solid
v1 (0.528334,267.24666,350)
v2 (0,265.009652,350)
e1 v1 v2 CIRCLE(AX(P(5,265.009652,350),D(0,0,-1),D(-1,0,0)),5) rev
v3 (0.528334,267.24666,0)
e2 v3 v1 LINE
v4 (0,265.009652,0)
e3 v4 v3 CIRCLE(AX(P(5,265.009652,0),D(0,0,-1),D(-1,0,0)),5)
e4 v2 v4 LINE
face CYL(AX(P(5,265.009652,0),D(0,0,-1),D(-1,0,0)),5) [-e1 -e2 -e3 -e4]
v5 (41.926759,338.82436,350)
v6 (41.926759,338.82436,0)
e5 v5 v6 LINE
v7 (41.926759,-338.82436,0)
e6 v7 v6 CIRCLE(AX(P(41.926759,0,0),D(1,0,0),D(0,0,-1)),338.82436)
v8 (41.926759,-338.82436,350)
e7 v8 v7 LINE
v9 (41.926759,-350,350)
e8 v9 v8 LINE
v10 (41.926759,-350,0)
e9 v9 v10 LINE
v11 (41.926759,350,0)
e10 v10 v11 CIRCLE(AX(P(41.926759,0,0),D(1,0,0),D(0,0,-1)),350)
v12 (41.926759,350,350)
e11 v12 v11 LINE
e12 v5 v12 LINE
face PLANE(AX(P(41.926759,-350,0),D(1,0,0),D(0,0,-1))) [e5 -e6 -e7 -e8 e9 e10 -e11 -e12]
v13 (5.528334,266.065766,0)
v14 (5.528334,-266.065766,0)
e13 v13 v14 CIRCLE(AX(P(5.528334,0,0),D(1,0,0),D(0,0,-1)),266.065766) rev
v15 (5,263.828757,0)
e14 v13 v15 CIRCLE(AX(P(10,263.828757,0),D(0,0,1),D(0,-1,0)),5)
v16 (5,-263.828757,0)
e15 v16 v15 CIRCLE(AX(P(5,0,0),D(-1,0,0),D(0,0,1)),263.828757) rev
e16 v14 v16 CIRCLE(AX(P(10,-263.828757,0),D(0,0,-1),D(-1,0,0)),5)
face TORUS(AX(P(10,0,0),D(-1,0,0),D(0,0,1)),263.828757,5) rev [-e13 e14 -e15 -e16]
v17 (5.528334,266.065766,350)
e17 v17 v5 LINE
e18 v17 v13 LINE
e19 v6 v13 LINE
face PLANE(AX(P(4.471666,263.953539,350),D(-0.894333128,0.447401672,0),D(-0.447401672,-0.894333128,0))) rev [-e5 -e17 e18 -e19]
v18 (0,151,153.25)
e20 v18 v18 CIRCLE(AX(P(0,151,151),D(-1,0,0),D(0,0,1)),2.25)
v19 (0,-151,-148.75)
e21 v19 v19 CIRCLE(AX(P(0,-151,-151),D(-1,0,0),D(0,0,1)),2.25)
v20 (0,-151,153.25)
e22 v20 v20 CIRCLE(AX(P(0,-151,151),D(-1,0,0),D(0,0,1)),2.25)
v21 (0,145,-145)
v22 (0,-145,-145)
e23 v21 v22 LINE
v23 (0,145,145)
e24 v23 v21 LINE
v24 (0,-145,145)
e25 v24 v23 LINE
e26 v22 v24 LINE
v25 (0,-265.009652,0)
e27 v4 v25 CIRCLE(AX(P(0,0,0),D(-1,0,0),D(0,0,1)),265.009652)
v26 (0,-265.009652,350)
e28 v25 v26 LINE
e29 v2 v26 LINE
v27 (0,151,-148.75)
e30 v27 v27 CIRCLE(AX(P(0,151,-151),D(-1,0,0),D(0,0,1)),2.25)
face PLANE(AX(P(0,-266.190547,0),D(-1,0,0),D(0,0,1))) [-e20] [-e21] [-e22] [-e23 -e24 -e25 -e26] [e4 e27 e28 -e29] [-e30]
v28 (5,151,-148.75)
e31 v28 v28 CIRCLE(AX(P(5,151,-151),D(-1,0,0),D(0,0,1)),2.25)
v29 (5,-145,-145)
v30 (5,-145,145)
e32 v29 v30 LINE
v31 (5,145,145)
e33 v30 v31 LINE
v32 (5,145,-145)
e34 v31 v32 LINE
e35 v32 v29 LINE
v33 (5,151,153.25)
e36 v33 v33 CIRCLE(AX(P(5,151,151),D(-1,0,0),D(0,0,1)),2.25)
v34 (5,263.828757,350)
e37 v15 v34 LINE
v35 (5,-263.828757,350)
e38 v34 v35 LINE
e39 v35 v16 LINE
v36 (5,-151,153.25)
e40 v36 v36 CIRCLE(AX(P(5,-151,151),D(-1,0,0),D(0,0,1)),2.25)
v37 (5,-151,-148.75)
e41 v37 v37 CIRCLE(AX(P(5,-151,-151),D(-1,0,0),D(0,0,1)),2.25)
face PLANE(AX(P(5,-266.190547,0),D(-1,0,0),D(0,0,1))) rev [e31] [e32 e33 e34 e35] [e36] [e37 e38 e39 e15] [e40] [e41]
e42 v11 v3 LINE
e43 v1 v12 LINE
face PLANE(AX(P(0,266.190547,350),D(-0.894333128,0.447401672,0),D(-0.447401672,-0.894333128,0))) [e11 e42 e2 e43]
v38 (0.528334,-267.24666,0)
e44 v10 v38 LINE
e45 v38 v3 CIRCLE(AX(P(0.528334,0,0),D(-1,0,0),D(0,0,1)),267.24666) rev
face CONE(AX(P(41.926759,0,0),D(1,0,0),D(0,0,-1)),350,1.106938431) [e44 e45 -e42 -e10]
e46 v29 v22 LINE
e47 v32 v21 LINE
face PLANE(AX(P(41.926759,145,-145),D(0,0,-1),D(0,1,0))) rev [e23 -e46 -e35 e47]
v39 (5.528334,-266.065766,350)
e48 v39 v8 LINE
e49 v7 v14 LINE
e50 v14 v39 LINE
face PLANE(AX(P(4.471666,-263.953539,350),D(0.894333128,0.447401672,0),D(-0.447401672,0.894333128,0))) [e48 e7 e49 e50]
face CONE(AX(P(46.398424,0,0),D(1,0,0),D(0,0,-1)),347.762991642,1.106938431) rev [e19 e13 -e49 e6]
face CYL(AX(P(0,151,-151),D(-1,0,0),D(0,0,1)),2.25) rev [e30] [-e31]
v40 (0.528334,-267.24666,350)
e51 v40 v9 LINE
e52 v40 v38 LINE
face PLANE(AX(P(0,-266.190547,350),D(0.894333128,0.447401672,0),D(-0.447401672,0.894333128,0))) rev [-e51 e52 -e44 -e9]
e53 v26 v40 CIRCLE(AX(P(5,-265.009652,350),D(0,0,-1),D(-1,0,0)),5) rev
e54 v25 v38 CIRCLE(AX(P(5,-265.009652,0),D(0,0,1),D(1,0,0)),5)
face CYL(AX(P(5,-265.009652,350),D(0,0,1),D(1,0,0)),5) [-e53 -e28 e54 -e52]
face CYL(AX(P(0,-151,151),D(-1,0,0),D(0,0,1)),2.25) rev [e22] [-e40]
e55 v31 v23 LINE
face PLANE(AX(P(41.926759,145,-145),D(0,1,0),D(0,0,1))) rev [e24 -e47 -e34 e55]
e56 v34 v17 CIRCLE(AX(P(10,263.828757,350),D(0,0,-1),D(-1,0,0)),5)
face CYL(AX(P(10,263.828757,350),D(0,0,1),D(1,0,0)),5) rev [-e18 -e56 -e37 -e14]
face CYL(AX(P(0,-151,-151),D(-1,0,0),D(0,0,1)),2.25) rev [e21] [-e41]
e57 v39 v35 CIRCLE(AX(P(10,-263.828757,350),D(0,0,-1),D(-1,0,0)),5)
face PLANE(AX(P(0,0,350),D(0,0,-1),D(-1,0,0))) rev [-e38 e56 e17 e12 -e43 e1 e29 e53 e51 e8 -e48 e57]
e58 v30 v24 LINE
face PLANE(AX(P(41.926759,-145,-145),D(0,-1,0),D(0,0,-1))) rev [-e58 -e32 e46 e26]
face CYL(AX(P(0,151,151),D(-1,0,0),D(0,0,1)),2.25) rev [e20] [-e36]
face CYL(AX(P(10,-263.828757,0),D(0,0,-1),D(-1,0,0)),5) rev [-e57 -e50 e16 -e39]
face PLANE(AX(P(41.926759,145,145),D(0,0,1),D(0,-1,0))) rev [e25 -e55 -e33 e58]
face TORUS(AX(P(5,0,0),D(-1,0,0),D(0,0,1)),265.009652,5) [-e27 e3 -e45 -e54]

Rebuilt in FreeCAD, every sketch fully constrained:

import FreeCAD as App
import Part
import Sketcher
Q = App.Units.Quantity


def edges_at(feature, points):
    """Names of the edges that pass closest to the given points."""
    edges = feature.Shape.Edges
    near = lambda p: min(range(len(edges)), key=lambda i: edges[i].distToShape(Part.Vertex(*p))[0])
    return sorted({f"Edge{near(p) + 1}" for p in points})


def faces_at(feature, points):
    """Names of the faces that lie closest to the given points."""
    faces = feature.Shape.Faces
    near = lambda p: min(range(len(faces)), key=lambda i: faces[i].distToShape(Part.Vertex(*p))[0])
    return sorted({f"Face{near(p) + 1}" for p in points})

doc = App.newDocument("Part")
params = doc.addObject("Spreadsheet::Sheet", "Params")
for row, (alias, value) in enumerate([
    ("sketch1_height", "350 mm"),
    ("revolution_angle", "180 deg"),
    ("sketch2_height", "700 mm"),
    ("pad1_length", "350 mm"),
    ("thickness_wall", "5 mm"),
    ("sketch3_width", "290 mm"),
    ("sketch4_diameter", "4.5 mm"),
    ("hole_diameter", "4.5 mm"),
    ("hole_depth", "30 mm"),
    ("fillet_radius", "5 mm"),
], start=1):
    params.set(f"A{row}", alias)
    params.set(f"B{row}", "=" + value)
    params.setAlias(f"B{row}", alias)

body = doc.addObject("PartDesign::Body", "Body")

# Sketch on XY plane
sketch1 = body.newObject("Sketcher::SketchObject", "Sketch")
sketch1.AttachmentSupport = (doc.getObject("XY_Plane"), [""])
sketch1.MapMode = "FlatFace"
sketch1.addGeometry([
    Part.LineSegment(App.Vector(41.926759, 0, 0), App.Vector(41.926759, 350, 0)),
    Part.LineSegment(App.Vector(41.926759, 350, 0), App.Vector(0, 266.190547, 0)),
    Part.LineSegment(App.Vector(0, 266.190547, 0), App.Vector(0, 0, 0)),
    Part.LineSegment(App.Vector(0, 0, 0), App.Vector(41.926759, 0, 0)),
], False)
sketch1.addConstraint([
    Sketcher.Constraint("Coincident", 0, 2, 1, 1),
    Sketcher.Constraint("Coincident", 1, 2, 2, 1),
    Sketcher.Constraint("Coincident", 2, 2, 3, 1),
    Sketcher.Constraint("Coincident", 3, 2, 0, 1),
    Sketcher.Constraint("Vertical", 0),
    Sketcher.Constraint("Vertical", 2),
    Sketcher.Constraint("Horizontal", 3),
    Sketcher.Constraint("Coincident", 2, 2, -1, 1),
    Sketcher.Constraint("DistanceY", 0, 1, 0, 2, Q("350 mm")),
    Sketcher.Constraint("DistanceX", 3, 1, 3, 2, Q("41.926759 mm")),
    Sketcher.Constraint("DistanceY", 2, 2, 2, 1, Q("266.190547 mm")),
])
sketch1.setExpression("Constraints[8]", "Params.sketch1_height")
revolution = body.newObject("PartDesign::Revolution", "Revolution")
revolution.Profile = sketch1
revolution.ReferenceAxis = (sketch1, ["H_Axis"])
revolution.setExpression("Angle", "Params.revolution_angle")
revolution.Reversed = True

# Sketch on XY plane
sketch2 = body.newObject("Sketcher::SketchObject", "Sketch001")
sketch2.AttachmentSupport = (doc.getObject("XY_Plane"), [""])
sketch2.MapMode = "FlatFace"
sketch2.addGeometry([
    Part.LineSegment(App.Vector(41.926759, 350, 0), App.Vector(0, 266.190547, 0)),
    Part.LineSegment(App.Vector(0, 266.190547, 0), App.Vector(0, -266.190547, 0)),
    Part.LineSegment(App.Vector(0, -266.190547, 0), App.Vector(41.926759, -350, 0)),
    Part.LineSegment(App.Vector(41.926759, -350, 0), App.Vector(41.926759, 350, 0)),
], False)
sketch2.addConstraint([
    Sketcher.Constraint("Coincident", 0, 2, 1, 1),
    Sketcher.Constraint("Coincident", 1, 2, 2, 1),
    Sketcher.Constraint("Coincident", 2, 2, 3, 1),
    Sketcher.Constraint("Coincident", 3, 2, 0, 1),
    Sketcher.Constraint("Vertical", 1),
    Sketcher.Constraint("Vertical", 3),
    Sketcher.Constraint("Symmetric", 0, 2, 1, 2, -1, 1),
    Sketcher.Constraint("Equal", 0, 2),
    Sketcher.Constraint("DistanceY", 3, 1, 3, 2, Q("700 mm")),
    Sketcher.Constraint("DistanceY", 1, 2, 1, 1, Q("532.381094 mm")),
    Sketcher.Constraint("DistanceX", -1, 1, 2, 2, Q("41.926759 mm")),
])
sketch2.setExpression("Constraints[8]", "Params.sketch2_height")
pad1 = body.newObject("PartDesign::Pad", "Pad")
pad1.Profile = sketch2
pad1.setExpression("Length", "Params.pad1_length")
doc.recompute()

thickness = body.newObject("PartDesign::Thickness", "Thickness")
thickness.Base = (pad1, faces_at(pad1, [(20.963, 0, 350), (41.927, 0, 0)]))
thickness.setExpression("Value", "Params.thickness_wall")
thickness.Reversed = True
thickness.Join = "Intersection"

# Sketch on YZ plane
sketch3 = body.newObject("Sketcher::SketchObject", "Sketch002")
sketch3.AttachmentSupport = (doc.getObject("YZ_Plane"), [""])
sketch3.MapMode = "FlatFace"
sketch3.addGeometry([
    Part.LineSegment(App.Vector(145, -145, 0), App.Vector(-145, -145, 0)),
    Part.LineSegment(App.Vector(-145, -145, 0), App.Vector(-145, 145, 0)),
    Part.LineSegment(App.Vector(-145, 145, 0), App.Vector(145, 145, 0)),
    Part.LineSegment(App.Vector(145, 145, 0), App.Vector(145, -145, 0)),
], False)
sketch3.addConstraint([
    Sketcher.Constraint("Coincident", 0, 2, 1, 1),
    Sketcher.Constraint("Coincident", 1, 2, 2, 1),
    Sketcher.Constraint("Coincident", 2, 2, 3, 1),
    Sketcher.Constraint("Coincident", 3, 2, 0, 1),
    Sketcher.Constraint("Horizontal", 0),
    Sketcher.Constraint("Vertical", 1),
    Sketcher.Constraint("Horizontal", 2),
    Sketcher.Constraint("Vertical", 3),
    Sketcher.Constraint("Symmetric", 0, 2, 2, 2, -1, 1),
    Sketcher.Constraint("Equal", 2, 1),
    Sketcher.Constraint("DistanceX", 0, 2, 0, 1, Q("290 mm")),
])
sketch3.setExpression("Constraints[10]", "Params.sketch3_width")
pocket1 = body.newObject("PartDesign::Pocket", "Pocket")
pocket1.Profile = sketch3
pocket1.Type = "ThroughAll"
pocket1.Reversed = True

# Sketch on YZ plane
sketch4 = body.newObject("Sketcher::SketchObject", "Sketch003")
sketch4.AttachmentSupport = (doc.getObject("YZ_Plane"), [""])
sketch4.MapMode = "FlatFace"
sketch4.addGeometry([
    Part.Circle(App.Vector(151, 151, 0), App.Vector(0, 0, 1), 2.25),
    Part.Circle(App.Vector(-151, 151, 0), App.Vector(0, 0, 1), 2.25),
    Part.Circle(App.Vector(-151, -151, 0), App.Vector(0, 0, 1), 2.25),
    Part.Circle(App.Vector(151, -151, 0), App.Vector(0, 0, 1), 2.25),
], False)
sketch4.addConstraint([
    Sketcher.Constraint("Equal", 0, 1),
    Sketcher.Constraint("Equal", 1, 2),
    Sketcher.Constraint("Equal", 2, 3),
    Sketcher.Constraint("Symmetric", 0, 3, 2, 3, -1, 1),
    Sketcher.Constraint("Symmetric", 1, 3, 3, 3, -1, 1),
    Sketcher.Constraint("Symmetric", 0, 3, 1, 3, -2),
    Sketcher.Constraint("Diameter", 0, Q("4.5 mm")),
    Sketcher.Constraint("DistanceX", -1, 1, 0, 3, Q("151 mm")),
    Sketcher.Constraint("DistanceY", -1, 1, 0, 3, Q("151 mm")),
])
sketch4.setExpression("Constraints[6]", "Params.sketch4_diameter")
doc.recompute()
hole = body.newObject("PartDesign::Hole", "Hole")
hole.Profile = sketch4
hole.ThreadType = "None"
hole.setExpression("Diameter", "Params.hole_diameter")
hole.DepthType = "Dimension"
hole.setExpression("Depth", "Params.hole_depth")
hole.DrillPoint = "Angled"
hole.DrillPointAngle = 118
hole.Reversed = True
doc.recompute()

fillet = body.newObject("PartDesign::Fillet", "Fillet")
fillet.Base = (hole, edges_at(hole, [
    (0, 266.191, 175),
    (0, -266.191, 175),
    (5, 0, -265.01),
    (5, 265.01, 175),
    (5, -265.01, 175),
    (0, 0, -266.191),
]))
fillet.setExpression("Radius", "Params.fillet_radius")

doc.recompute()
